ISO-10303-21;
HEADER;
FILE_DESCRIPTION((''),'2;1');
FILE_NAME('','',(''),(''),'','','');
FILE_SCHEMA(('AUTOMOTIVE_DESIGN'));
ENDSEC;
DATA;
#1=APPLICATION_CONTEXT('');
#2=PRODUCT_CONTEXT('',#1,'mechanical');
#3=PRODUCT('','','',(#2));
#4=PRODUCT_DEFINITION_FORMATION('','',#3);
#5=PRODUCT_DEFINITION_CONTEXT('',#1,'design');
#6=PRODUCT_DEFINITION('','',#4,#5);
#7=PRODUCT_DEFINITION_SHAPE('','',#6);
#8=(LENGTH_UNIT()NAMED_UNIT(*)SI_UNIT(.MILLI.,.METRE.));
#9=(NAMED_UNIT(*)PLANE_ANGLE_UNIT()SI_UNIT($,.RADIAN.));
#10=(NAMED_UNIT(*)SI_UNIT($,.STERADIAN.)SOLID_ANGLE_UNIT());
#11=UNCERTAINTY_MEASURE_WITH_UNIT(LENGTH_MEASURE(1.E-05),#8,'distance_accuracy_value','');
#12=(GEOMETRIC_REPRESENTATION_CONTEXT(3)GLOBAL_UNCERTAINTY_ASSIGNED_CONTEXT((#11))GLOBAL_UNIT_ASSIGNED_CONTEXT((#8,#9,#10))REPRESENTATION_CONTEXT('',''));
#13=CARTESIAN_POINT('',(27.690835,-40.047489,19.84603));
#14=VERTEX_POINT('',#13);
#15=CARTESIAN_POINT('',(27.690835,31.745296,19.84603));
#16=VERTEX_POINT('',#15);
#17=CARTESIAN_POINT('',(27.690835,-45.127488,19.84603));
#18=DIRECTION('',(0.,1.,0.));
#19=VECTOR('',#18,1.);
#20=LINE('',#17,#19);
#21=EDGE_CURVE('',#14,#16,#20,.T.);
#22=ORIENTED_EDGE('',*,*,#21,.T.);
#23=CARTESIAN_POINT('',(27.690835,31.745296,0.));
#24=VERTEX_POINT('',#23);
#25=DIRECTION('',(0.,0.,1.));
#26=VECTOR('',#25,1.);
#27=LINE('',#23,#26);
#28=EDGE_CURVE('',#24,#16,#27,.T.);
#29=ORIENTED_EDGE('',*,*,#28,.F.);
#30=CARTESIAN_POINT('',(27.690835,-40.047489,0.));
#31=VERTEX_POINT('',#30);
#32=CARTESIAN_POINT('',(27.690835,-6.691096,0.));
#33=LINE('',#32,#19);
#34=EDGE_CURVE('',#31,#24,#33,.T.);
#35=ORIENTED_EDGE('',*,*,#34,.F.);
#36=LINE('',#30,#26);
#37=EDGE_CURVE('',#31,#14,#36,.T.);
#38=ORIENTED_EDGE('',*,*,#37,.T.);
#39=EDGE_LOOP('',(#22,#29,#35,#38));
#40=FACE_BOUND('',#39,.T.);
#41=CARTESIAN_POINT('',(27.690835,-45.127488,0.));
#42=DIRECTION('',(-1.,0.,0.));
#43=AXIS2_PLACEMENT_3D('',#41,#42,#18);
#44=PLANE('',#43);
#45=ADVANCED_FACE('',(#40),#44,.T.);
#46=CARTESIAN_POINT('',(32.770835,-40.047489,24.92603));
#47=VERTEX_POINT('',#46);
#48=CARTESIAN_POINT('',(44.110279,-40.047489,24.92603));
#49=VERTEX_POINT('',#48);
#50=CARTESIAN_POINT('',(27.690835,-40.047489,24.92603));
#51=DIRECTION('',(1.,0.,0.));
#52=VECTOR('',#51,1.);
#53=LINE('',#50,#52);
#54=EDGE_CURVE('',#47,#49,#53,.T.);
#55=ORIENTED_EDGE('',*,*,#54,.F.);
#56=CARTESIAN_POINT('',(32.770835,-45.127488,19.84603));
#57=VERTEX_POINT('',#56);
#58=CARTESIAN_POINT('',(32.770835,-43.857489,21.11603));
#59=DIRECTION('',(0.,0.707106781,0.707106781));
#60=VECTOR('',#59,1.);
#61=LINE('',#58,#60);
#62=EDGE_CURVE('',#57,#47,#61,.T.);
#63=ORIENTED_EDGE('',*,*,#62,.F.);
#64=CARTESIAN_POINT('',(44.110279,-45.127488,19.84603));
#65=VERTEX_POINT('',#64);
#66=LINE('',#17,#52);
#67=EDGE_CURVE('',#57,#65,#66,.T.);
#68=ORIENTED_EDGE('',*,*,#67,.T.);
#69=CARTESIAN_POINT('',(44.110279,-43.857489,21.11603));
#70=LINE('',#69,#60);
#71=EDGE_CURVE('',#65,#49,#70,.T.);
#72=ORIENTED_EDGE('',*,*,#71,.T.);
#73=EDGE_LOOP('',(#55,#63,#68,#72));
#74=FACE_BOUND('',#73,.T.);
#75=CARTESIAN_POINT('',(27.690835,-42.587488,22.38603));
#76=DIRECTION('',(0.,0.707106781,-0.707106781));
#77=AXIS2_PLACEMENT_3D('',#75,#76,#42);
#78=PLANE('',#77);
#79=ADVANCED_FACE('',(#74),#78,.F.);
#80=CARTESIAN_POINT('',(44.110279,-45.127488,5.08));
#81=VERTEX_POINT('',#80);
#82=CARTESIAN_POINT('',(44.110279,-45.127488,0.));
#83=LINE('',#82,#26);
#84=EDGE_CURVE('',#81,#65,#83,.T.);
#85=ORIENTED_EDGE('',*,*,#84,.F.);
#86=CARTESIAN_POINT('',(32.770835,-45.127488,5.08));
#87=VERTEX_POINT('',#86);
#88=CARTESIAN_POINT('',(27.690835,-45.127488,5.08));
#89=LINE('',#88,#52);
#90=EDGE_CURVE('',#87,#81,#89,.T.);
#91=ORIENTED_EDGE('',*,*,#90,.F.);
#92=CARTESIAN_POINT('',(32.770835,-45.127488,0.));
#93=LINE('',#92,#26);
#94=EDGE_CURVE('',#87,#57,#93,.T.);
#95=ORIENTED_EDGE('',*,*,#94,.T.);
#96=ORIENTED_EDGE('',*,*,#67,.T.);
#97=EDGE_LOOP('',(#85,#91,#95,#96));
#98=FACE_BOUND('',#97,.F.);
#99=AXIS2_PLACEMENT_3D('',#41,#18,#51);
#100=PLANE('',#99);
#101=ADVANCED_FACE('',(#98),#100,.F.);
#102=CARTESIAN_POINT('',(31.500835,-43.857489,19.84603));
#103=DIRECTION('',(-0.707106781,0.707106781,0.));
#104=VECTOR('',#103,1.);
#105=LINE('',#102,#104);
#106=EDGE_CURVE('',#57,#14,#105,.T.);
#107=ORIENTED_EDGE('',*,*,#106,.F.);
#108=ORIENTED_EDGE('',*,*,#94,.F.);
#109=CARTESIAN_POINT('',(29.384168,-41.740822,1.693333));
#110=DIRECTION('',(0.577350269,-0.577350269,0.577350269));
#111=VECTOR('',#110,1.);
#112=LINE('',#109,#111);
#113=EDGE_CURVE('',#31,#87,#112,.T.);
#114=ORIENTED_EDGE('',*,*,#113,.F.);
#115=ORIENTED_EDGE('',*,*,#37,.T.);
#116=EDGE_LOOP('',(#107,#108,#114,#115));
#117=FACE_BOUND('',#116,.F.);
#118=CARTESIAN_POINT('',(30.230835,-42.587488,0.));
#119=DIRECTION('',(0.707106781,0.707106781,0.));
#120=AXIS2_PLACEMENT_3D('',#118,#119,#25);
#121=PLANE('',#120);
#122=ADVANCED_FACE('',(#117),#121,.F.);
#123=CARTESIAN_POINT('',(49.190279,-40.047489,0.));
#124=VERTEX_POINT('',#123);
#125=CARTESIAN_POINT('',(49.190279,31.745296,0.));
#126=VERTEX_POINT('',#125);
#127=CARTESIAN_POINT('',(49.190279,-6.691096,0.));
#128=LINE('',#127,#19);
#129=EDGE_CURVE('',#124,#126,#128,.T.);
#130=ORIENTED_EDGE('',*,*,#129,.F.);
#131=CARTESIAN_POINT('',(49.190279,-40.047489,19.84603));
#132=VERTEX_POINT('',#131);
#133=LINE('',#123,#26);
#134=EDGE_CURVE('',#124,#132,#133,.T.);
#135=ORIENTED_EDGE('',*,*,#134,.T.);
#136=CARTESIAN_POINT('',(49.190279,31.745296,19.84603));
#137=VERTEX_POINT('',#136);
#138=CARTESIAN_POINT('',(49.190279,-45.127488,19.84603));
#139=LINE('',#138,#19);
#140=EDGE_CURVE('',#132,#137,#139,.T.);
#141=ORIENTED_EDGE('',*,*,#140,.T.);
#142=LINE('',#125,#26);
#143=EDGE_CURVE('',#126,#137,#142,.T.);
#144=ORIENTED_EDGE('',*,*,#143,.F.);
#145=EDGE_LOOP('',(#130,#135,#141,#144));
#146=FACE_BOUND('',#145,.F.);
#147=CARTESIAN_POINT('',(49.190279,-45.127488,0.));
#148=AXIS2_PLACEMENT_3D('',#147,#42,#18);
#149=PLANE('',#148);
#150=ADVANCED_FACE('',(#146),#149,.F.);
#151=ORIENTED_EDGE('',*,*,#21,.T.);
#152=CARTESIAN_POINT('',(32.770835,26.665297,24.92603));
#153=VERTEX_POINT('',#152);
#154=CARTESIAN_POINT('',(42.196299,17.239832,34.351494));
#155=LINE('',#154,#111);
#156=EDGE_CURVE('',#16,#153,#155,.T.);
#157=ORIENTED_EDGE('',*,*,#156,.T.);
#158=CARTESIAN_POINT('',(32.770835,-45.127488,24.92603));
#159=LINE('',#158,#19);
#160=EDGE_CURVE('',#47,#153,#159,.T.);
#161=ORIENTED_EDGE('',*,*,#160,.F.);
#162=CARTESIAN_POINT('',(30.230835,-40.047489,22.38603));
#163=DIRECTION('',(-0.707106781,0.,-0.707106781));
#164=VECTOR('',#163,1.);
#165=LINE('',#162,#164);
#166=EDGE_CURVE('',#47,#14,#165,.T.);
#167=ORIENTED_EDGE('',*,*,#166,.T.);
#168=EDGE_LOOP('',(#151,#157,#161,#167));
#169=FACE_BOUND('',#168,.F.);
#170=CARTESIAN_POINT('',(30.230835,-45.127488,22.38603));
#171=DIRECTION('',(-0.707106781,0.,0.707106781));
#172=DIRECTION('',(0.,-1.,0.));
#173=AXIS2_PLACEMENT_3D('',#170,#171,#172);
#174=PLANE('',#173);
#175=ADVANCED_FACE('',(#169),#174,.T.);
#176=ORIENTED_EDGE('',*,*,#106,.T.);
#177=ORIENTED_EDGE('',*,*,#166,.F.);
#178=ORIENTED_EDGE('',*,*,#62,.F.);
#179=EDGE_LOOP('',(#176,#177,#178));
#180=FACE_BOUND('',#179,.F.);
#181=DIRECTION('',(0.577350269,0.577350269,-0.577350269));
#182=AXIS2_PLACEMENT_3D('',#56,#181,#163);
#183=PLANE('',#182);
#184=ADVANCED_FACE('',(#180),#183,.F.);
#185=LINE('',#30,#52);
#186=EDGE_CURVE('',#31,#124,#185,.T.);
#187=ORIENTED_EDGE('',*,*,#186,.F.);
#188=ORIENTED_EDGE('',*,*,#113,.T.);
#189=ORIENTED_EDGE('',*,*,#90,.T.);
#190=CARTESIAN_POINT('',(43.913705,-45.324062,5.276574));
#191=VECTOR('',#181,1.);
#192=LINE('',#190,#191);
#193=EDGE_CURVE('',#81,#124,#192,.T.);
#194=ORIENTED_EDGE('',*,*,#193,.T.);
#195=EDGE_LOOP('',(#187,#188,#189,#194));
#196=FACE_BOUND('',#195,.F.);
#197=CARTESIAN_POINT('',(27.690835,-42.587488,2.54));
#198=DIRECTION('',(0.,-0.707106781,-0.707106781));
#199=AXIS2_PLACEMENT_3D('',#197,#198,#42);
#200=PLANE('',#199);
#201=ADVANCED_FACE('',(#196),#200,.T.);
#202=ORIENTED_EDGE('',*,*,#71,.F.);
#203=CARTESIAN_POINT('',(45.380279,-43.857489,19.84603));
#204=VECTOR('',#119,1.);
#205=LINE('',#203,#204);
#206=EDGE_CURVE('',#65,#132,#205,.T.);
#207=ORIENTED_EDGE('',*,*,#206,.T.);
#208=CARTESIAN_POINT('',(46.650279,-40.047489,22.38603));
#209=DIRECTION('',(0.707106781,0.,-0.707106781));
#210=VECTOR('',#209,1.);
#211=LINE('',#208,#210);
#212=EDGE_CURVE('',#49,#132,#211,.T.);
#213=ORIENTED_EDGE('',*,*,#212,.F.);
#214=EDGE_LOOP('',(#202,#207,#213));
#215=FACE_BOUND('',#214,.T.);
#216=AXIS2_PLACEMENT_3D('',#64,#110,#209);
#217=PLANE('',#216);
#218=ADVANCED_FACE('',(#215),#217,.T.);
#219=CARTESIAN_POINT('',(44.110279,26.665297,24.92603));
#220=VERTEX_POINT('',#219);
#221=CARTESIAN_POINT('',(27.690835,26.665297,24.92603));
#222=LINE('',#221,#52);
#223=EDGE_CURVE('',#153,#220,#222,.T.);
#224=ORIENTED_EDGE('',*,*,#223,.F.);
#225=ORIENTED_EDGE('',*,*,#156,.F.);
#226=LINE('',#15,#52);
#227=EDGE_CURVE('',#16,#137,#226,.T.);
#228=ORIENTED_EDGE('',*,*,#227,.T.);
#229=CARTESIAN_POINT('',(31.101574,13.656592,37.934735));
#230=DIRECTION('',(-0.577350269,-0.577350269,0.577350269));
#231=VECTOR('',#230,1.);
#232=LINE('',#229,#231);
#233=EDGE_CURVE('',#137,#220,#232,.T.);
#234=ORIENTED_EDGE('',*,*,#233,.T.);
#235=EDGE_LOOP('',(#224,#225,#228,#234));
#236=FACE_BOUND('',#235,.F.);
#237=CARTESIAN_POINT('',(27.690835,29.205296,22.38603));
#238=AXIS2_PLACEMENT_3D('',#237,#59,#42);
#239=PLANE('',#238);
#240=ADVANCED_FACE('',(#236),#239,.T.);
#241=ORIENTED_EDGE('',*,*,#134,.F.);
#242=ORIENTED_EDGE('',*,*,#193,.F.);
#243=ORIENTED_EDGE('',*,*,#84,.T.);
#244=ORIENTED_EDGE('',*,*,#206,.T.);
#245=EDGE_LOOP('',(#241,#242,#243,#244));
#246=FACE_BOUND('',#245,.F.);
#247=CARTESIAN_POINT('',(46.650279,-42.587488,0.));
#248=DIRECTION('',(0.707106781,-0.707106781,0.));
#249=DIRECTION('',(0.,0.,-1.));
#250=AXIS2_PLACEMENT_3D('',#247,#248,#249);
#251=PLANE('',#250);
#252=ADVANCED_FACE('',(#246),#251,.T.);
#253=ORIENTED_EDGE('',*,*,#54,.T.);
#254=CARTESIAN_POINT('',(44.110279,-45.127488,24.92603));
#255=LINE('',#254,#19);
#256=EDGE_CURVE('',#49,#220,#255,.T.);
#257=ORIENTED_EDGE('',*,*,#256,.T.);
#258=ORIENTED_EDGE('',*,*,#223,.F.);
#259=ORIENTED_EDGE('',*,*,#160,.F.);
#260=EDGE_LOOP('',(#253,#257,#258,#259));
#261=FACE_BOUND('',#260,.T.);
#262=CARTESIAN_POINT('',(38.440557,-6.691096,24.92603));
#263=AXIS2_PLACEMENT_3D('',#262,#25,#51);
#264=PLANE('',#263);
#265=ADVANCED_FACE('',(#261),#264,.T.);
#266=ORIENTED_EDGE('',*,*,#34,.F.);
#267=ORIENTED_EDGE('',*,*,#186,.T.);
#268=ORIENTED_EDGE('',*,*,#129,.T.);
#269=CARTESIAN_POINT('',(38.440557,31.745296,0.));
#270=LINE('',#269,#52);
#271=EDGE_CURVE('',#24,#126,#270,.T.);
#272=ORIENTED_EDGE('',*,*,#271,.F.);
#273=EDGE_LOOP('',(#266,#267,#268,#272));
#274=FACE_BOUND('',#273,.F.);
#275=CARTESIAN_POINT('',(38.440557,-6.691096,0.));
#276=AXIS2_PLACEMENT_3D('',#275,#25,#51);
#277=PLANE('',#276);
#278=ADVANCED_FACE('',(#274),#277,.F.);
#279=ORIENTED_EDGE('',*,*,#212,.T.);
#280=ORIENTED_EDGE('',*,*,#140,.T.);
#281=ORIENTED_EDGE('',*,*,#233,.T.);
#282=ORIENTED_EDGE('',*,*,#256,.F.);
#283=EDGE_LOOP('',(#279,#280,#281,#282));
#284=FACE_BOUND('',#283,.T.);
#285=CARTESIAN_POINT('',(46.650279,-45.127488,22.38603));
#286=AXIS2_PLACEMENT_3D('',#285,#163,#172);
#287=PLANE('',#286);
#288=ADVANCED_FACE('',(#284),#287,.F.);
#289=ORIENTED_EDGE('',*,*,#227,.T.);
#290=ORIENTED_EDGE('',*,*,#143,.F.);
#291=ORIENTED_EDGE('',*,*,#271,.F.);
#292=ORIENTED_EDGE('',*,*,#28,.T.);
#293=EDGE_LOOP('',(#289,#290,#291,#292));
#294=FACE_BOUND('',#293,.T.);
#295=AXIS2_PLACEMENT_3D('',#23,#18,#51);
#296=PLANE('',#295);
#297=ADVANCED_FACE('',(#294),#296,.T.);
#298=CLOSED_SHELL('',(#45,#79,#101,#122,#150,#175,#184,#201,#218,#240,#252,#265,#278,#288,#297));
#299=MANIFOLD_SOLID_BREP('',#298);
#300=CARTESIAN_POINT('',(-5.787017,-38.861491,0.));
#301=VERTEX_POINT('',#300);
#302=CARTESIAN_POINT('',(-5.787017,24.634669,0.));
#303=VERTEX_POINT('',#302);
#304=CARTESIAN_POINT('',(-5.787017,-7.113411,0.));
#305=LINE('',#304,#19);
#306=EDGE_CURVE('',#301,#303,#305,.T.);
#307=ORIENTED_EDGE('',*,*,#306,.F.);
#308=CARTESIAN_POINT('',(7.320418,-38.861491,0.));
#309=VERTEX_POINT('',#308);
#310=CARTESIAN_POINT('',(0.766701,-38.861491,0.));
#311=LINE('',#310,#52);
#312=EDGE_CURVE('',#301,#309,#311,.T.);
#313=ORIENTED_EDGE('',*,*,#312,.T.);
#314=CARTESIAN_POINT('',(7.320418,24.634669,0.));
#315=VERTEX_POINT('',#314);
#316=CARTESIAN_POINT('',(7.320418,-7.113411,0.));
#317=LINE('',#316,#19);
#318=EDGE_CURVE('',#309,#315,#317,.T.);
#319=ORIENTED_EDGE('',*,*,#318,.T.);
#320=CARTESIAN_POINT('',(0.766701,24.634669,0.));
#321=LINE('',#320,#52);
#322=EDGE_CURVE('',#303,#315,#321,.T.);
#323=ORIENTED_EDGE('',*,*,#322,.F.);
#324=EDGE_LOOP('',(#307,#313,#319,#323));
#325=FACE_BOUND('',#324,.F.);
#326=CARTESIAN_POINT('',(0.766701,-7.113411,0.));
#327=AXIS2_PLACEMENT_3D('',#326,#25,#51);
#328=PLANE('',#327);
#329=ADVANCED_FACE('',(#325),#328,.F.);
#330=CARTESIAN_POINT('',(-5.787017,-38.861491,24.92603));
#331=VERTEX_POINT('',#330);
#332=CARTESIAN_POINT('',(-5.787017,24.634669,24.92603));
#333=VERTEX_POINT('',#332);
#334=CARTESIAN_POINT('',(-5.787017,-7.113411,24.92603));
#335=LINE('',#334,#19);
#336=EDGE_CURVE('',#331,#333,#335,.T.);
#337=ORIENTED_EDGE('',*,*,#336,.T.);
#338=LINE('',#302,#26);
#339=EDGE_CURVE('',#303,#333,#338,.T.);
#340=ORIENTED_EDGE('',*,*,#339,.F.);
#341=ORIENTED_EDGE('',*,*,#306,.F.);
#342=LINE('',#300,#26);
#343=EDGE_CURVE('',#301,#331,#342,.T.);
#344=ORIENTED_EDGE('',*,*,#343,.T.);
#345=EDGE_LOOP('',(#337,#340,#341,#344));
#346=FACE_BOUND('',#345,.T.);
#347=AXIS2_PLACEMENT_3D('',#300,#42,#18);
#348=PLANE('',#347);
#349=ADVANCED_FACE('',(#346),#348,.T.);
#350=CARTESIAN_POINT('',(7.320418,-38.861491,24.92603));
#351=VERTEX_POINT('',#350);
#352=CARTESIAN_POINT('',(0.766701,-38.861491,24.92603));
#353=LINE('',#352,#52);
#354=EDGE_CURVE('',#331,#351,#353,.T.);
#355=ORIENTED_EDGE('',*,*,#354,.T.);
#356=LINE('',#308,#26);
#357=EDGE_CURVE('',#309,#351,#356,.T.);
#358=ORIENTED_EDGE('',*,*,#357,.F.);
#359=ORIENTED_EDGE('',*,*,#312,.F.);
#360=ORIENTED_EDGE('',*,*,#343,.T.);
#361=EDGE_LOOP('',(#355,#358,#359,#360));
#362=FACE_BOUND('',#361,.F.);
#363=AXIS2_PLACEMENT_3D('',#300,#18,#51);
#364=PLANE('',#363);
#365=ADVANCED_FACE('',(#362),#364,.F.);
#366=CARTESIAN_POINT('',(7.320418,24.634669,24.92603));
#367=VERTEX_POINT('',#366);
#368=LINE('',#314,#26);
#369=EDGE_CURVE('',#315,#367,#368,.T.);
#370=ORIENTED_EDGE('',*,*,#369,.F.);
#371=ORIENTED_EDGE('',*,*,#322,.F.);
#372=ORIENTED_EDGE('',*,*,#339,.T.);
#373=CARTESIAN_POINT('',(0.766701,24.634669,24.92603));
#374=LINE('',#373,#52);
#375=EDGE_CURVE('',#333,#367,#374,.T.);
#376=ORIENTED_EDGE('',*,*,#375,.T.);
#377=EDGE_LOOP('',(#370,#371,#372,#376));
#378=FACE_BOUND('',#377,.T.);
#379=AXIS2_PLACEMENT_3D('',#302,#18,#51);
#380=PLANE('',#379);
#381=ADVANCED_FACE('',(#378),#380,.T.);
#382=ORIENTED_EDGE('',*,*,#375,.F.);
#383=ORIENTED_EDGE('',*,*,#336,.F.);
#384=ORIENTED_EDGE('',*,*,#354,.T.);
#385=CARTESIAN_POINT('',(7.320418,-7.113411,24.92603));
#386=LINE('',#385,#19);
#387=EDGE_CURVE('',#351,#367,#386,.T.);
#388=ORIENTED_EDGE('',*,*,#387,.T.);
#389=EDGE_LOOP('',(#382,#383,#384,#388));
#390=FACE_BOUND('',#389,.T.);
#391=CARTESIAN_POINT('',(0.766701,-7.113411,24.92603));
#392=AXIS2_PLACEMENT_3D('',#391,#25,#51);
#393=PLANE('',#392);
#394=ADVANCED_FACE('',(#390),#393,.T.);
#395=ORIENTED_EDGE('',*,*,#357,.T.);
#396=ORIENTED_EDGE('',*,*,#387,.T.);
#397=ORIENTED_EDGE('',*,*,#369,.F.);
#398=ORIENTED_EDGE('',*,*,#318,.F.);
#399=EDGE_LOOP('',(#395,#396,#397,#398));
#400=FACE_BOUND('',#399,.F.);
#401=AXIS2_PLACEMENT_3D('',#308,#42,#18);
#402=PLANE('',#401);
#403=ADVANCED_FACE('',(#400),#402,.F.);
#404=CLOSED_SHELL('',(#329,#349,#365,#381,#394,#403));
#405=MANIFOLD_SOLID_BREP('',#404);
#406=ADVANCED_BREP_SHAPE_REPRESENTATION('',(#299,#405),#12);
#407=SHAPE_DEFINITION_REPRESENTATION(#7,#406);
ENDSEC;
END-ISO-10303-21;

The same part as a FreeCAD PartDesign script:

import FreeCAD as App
import Part
import Sketcher
from FreeCAD import Vector


def edges_at(feature, points):
    """Names of the edges that pass closest to the given points."""
    edges = feature.Shape.Edges
    near = lambda p: min(range(len(edges)), key=lambda i: edges[i].distToShape(Part.Vertex(*p))[0])
    return sorted({f"Edge{near(p) + 1}" for p in points})


def add_polygon(sketch, points):
    """Adds a closed chain of lines whose ends are joined by coincident constraints."""
    first, n = sketch.GeometryCount, len(points)
    for a, b in zip(points, points[1:] + points[:1]):
        sketch.addGeometry(Part.LineSegment(App.Vector(*a, 0), App.Vector(*b, 0)), False)
    for i in range(n):
        sketch.addConstraint(Sketcher.Constraint("Coincident", first + i, 2, first + (i + 1) % n, 1))

doc = App.newDocument("Part")
params = doc.addObject("Spreadsheet::Sheet", "Params")
for row, (alias, value) in enumerate([
    ("pad1_length", "24.92603 mm"),
    ("chamfer_size", "0.2 in"),
], start=1):
    params.set(f"A{row}", alias)
    params.set(f"B{row}", "=" + value)
    params.setAlias(f"B{row}", alias)

body = doc.addObject("PartDesign::Body", "Body")
body.AllowCompound = True

sketch1 = body.newObject("Sketcher::SketchObject", "Sketch")
sketch1.AttachmentSupport = (doc.getObject("XY_Plane"), [""])
sketch1.MapMode = "FlatFace"
add_polygon(sketch1, [(-6, 25), (-6, -39), (7, -39), (7, 25)])
add_polygon(sketch1, [(28, 32), (28, -45), (49, -45), (49, 32)])
sketch1.addConstraint(Sketcher.Constraint("Vertical", 0))
sketch1.addConstraint(Sketcher.Constraint("Horizontal", 1))
sketch1.addConstraint(Sketcher.Constraint("Vertical", 2))
sketch1.addConstraint(Sketcher.Constraint("Horizontal", 3))
sketch1.addConstraint(Sketcher.Constraint("Vertical", 4))
sketch1.addConstraint(Sketcher.Constraint("Horizontal", 5))
sketch1.addConstraint(Sketcher.Constraint("Vertical", 6))
sketch1.addConstraint(Sketcher.Constraint("Horizontal", 7))
sketch1.addConstraint(Sketcher.Constraint("DistanceY", 0, 2, 0, 1, 63.49616))
sketch1.addConstraint(Sketcher.Constraint("DistanceX", 1, 1, 1, 2, 13.107435))
sketch1.addConstraint(Sketcher.Constraint("DistanceX", 5, 1, 5, 2, 21.499444))
sketch1.addConstraint(Sketcher.Constraint("DistanceY", 4, 2, 4, 1, 76.872785))
sketch1.addConstraint(Sketcher.Constraint("DistanceY", 0, 2, -1, 1, 38.861491))
sketch1.addConstraint(Sketcher.Constraint("DistanceX", -1, 1, 1, 2, 7.320418))
sketch1.addConstraint(Sketcher.Constraint("DistanceY", 4, 2, -1, 1, 45.127488))
sketch1.addConstraint(Sketcher.Constraint("DistanceX", -1, 1, 5, 2, 49.190279))
pad1 = body.newObject("PartDesign::Pad", "Pad")
pad1.Profile = sketch1
pad1.setExpression("Length", "Params.pad1_length")
doc.recompute()

chamfer = body.newObject("PartDesign::Chamfer", "Chamfer")
chamfer.Base = (pad1, edges_at(pad1, [
    (49.19, -6.691, 24.926),
    (38.441, 31.745, 24.926),
    (27.691, -6.691, 24.926),
    (38.441, -45.127, 24.926),
    (27.691, -45.127, 12.463),
    (49.19, -45.127, 12.463),
    (38.441, -45.127, 0),
]))
chamfer.setExpression("Size", "Params.chamfer_size")

doc.recompute()
